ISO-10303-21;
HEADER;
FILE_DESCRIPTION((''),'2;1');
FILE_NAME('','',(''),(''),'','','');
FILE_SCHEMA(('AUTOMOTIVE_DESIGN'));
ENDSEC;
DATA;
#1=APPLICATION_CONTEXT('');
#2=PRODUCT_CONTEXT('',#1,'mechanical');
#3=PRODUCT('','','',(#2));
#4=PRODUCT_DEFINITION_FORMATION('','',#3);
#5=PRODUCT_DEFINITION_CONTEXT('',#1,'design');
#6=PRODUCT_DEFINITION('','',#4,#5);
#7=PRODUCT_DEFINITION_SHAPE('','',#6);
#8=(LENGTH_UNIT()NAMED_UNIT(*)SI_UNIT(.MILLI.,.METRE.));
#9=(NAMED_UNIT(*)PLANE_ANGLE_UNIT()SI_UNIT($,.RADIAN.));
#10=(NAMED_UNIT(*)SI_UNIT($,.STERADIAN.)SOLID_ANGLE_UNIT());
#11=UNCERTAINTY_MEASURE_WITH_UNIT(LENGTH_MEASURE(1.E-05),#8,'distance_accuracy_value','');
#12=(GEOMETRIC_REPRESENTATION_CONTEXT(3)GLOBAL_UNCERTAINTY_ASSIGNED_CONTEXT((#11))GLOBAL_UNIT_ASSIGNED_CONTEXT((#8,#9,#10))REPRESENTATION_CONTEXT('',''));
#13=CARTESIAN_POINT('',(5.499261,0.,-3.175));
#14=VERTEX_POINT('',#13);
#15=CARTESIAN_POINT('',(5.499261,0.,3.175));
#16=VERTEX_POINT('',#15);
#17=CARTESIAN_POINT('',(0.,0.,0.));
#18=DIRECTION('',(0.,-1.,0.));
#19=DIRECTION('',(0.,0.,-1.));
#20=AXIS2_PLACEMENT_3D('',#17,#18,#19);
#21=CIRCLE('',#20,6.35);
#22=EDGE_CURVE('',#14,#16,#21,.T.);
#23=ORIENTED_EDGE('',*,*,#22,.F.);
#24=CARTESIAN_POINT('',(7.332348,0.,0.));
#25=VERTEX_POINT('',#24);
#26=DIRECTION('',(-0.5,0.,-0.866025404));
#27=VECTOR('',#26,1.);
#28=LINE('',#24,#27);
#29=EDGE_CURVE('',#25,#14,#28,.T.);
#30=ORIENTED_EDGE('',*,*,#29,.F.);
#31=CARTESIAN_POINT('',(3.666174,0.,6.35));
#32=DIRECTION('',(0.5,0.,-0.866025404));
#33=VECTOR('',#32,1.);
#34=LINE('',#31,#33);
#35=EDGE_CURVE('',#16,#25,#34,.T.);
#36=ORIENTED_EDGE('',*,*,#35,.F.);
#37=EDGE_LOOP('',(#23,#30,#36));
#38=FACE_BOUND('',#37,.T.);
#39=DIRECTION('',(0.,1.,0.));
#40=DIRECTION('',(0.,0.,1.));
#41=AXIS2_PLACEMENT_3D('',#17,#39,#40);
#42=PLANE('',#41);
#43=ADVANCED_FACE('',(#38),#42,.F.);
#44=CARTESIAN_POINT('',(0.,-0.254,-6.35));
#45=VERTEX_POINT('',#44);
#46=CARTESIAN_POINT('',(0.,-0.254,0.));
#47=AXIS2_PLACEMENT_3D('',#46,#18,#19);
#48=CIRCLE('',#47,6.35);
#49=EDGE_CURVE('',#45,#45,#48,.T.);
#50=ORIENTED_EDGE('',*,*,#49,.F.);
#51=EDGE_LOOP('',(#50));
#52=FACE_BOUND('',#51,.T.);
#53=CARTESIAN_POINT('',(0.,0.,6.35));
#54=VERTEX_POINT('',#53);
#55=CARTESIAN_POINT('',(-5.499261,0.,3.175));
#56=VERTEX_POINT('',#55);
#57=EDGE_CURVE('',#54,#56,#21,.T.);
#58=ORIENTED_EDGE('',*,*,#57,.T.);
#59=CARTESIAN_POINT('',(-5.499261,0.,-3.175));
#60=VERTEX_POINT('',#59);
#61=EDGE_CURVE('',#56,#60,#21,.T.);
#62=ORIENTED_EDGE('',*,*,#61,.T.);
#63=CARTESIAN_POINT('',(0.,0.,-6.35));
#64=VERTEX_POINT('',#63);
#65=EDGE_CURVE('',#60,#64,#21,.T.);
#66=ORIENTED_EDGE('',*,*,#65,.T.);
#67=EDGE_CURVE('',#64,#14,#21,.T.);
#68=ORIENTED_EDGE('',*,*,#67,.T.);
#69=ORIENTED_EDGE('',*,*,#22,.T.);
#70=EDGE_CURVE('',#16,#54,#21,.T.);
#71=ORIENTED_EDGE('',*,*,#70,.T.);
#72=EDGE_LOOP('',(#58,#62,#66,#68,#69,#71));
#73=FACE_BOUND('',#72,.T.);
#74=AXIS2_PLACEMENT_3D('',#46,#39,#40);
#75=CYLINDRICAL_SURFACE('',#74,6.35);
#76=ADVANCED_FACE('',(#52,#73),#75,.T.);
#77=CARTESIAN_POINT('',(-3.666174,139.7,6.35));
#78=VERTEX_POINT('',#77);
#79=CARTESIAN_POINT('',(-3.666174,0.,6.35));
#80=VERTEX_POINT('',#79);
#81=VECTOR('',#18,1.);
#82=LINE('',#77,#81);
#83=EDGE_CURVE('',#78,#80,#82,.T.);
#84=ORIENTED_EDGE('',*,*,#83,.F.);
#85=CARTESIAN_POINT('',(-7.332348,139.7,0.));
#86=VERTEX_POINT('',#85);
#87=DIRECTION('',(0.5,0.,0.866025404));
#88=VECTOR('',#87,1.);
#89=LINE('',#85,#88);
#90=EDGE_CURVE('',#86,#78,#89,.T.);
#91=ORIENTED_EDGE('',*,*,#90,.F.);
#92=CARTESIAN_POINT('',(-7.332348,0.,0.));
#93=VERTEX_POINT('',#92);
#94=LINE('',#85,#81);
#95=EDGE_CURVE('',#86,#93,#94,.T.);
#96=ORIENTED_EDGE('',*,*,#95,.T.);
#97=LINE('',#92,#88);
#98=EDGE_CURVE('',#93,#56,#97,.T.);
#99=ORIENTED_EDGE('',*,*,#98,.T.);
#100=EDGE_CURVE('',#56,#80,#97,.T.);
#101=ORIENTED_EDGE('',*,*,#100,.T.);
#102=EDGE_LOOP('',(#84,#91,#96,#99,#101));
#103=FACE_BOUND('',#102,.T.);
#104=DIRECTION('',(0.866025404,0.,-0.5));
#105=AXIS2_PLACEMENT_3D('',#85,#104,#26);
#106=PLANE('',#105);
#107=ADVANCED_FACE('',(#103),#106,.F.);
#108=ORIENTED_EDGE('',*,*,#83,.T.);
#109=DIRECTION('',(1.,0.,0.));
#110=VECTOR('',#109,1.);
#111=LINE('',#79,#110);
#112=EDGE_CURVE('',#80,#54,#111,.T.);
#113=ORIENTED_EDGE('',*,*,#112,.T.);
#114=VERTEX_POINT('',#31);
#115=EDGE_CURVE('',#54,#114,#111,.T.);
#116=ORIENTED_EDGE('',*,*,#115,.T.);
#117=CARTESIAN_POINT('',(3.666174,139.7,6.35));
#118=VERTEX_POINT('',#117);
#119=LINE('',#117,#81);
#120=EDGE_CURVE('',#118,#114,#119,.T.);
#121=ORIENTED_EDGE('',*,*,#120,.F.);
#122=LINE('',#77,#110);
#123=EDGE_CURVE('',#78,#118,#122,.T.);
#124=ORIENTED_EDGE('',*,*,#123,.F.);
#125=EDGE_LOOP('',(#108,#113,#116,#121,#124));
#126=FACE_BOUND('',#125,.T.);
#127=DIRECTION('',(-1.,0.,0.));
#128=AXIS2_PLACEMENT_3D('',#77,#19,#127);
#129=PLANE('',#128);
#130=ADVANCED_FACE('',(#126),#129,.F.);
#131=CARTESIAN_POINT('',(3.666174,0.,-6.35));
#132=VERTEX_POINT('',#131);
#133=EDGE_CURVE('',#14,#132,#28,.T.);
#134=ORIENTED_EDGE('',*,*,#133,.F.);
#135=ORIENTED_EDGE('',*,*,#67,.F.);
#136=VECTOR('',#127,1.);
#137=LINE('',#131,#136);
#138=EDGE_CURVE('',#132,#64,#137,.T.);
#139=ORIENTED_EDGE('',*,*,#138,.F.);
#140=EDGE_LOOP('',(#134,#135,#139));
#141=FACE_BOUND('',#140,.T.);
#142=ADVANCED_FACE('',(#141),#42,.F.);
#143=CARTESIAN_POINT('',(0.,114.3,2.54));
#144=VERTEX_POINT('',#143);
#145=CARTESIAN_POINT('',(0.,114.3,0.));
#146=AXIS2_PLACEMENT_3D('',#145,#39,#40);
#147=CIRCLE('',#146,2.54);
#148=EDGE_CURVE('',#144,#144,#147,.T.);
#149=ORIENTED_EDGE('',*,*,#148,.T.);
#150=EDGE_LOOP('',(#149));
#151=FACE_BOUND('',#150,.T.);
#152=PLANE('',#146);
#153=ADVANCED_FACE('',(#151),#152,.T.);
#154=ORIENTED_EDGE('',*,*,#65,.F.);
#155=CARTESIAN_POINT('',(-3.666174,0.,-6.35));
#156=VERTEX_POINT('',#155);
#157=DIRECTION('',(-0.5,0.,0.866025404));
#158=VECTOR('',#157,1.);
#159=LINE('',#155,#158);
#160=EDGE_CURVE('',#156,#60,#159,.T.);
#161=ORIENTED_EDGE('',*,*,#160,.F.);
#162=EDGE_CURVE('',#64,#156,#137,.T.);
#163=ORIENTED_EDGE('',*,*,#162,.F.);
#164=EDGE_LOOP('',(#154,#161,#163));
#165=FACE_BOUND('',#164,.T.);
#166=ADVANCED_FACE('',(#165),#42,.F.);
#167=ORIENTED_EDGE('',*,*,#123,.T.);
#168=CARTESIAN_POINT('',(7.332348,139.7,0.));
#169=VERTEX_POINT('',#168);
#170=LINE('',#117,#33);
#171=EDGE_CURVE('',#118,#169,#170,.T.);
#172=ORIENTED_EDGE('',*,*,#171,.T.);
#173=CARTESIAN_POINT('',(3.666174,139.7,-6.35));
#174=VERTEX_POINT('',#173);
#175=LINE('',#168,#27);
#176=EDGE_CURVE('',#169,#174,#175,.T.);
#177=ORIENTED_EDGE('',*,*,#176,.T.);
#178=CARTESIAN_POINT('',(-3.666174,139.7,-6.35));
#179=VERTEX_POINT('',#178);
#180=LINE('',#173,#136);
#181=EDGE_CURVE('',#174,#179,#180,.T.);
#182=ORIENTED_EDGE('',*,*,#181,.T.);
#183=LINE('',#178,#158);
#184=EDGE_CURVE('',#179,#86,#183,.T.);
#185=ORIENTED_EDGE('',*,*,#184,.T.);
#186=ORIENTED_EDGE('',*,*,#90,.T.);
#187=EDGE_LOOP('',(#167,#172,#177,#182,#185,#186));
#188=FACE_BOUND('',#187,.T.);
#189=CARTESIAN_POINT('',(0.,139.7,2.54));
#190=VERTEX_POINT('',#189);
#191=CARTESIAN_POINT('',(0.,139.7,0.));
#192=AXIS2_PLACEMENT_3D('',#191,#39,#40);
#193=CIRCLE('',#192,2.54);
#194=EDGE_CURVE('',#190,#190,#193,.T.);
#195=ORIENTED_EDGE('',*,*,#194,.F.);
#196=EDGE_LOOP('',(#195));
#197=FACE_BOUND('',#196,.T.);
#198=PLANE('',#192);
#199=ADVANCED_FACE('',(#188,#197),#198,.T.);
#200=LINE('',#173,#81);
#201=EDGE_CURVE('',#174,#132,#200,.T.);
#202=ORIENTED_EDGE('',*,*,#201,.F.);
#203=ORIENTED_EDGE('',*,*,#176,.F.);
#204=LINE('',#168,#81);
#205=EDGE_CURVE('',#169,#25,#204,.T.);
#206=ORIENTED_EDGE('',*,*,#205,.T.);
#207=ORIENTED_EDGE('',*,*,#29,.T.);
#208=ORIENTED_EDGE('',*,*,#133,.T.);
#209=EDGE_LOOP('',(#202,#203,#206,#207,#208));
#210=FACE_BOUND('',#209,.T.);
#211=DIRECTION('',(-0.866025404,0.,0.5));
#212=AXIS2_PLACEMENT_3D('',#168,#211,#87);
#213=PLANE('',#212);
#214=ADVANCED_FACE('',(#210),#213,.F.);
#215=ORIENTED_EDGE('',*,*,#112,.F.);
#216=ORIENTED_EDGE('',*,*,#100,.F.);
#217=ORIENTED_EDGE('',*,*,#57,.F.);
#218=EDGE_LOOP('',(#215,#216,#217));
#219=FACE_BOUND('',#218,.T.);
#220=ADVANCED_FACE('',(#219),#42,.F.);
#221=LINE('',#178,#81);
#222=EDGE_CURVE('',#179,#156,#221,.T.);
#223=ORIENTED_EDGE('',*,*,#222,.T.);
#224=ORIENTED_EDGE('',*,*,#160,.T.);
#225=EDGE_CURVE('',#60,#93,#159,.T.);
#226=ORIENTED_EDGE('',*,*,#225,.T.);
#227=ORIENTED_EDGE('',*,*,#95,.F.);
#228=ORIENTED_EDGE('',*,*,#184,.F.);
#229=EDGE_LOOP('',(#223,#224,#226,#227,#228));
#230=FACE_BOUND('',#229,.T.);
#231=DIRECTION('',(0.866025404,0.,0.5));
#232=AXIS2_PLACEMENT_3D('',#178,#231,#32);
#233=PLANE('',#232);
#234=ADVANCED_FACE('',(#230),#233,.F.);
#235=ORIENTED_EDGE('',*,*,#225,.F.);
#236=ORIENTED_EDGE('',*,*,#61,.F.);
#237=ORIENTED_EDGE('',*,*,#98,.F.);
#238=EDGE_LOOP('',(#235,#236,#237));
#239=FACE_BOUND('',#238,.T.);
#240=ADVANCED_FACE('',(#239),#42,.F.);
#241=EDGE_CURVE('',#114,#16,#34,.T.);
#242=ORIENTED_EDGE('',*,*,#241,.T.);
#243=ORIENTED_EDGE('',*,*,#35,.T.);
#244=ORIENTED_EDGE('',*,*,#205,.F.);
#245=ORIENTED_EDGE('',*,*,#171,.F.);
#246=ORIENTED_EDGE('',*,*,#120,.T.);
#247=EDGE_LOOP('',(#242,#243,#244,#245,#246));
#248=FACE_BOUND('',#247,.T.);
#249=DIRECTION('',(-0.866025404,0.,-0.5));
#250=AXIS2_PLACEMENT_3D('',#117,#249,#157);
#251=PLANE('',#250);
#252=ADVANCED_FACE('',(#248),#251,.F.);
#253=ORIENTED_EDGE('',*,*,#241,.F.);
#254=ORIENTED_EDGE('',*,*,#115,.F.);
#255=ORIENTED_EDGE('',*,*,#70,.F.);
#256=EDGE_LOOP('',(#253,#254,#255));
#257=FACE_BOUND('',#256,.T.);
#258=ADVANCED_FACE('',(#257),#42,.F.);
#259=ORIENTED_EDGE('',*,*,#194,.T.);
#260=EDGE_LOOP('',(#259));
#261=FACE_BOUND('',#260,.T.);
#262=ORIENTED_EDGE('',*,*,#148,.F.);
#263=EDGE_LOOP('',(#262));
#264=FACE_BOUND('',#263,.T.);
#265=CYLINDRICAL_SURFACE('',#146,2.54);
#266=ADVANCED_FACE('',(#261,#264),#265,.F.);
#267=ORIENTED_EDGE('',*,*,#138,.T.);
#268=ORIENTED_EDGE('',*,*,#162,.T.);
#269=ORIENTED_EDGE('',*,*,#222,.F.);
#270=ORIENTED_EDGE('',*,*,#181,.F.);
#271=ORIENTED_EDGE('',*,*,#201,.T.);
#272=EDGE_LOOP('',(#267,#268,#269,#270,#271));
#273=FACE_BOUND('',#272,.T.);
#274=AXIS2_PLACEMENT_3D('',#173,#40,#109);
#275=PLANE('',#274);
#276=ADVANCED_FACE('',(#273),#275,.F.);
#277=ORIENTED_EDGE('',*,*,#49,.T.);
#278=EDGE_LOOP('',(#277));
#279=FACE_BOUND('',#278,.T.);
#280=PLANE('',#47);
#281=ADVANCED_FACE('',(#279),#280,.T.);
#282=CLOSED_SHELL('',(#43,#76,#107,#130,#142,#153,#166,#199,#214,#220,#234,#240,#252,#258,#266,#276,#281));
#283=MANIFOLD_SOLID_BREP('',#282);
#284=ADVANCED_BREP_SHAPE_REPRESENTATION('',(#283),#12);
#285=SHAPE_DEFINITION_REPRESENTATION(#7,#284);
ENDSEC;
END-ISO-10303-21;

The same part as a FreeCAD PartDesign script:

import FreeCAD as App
import Part
import Sketcher
Q = App.Units.Quantity


def add_polygon(sketch, points):
    """Adds a closed chain of lines whose ends are joined by coincident constraints."""
    first, n = sketch.GeometryCount, len(points)
    for a, b in zip(points, points[1:] + points[:1]):
        sketch.addGeometry(Part.LineSegment(App.Vector(*a, 0), App.Vector(*b, 0)), False)
    for i in range(n):
        sketch.addConstraint(Sketcher.Constraint("Coincident", first + i, 2, first + (i + 1) % n, 1))

doc = App.newDocument("Part")
body = doc.addObject("PartDesign::Body", "Body")

sketch1 = body.newObject("Sketcher::SketchObject", "Sketch")
sketch1.AttachmentSupport = (doc.getObject("XZ_Plane"), [""])
sketch1.MapMode = "FlatFace"
add_polygon(sketch1, [(7.332348, 0), (3.666174, -6.35), (-3.666174, -6.35), (-7.332348, 0), (-3.666174, 6.35), (3.666174, 6.35)])
sketch1.addConstraint(Sketcher.Constraint("Horizontal", 1))
sketch1.addConstraint(Sketcher.Constraint("Horizontal", 4))
sketch1.addConstraint(Sketcher.Constraint("Symmetric", 0, 2, 3, 2, -1, 1))
sketch1.addConstraint(Sketcher.Constraint("Symmetric", 2, 2, 5, 2, -1, 1))
sketch1.addConstraint(Sketcher.Constraint("PointOnObject", 2, 2, -1))
sketch1.addConstraint(Sketcher.Constraint("Parallel", 2, 5))
sketch1.addConstraint(Sketcher.Constraint("Vertical", 1, 2, 3, 2))
sketch1.addConstraint(Sketcher.Constraint("Angle", 0, Q("-120 deg")))
sketch1.addConstraint(Sketcher.Constraint("DistanceY", 1, 2, 3, 2, Q("0.5 in")))
sketch1.addConstraint(Sketcher.Constraint("DistanceX", 1, 2, 1, 1, 7.332348))
pad1 = body.newObject("PartDesign::Pad", "Pad")
pad1.Profile = sketch1
pad1.Length = Q("5.5 in")
pad1.Reversed = True

sketch2 = body.newObject("Sketcher::SketchObject", "Sketch001")
sketch2.AttachmentSupport = (doc.getObject("XZ_Plane"), [""])
sketch2.MapMode = "FlatFace"
sketch2.AttachmentOffset = App.Placement(App.Vector(0, 0, -5.5 * 25.4), App.Rotation())
sketch2.addGeometry(Part.Circle(App.Vector(0, 0, 0), App.Vector(0, 0, 1), 2.54), False)
sketch2.addConstraint(Sketcher.Constraint("Coincident", 0, 3, -1, 1))
sketch2.addConstraint(Sketcher.Constraint("Diameter", 0, Q("0.2 in")))
pocket1 = body.newObject("PartDesign::Pocket", "Pocket")
pocket1.Profile = sketch2
pocket1.Length = Q("1 in")
pocket1.Reversed = True

sketch3 = body.newObject("Sketcher::SketchObject", "Sketch002")
sketch3.AttachmentSupport = (doc.getObject("XZ_Plane"), [""])
sketch3.MapMode = "FlatFace"
sketch3.addGeometry(Part.Circle(App.Vector(0, 0, 0), App.Vector(0, 0, 1), 6.35), False)
sketch3.addConstraint(Sketcher.Constraint("Coincident", 0, 3, -1, 1))
sketch3.addConstraint(Sketcher.Constraint("Diameter", 0, Q("0.5 in")))
pad2 = body.newObject("PartDesign::Pad", "Pad001")
pad2.Profile = sketch3
pad2.Length = Q("0.01 in")

doc.recompute()
